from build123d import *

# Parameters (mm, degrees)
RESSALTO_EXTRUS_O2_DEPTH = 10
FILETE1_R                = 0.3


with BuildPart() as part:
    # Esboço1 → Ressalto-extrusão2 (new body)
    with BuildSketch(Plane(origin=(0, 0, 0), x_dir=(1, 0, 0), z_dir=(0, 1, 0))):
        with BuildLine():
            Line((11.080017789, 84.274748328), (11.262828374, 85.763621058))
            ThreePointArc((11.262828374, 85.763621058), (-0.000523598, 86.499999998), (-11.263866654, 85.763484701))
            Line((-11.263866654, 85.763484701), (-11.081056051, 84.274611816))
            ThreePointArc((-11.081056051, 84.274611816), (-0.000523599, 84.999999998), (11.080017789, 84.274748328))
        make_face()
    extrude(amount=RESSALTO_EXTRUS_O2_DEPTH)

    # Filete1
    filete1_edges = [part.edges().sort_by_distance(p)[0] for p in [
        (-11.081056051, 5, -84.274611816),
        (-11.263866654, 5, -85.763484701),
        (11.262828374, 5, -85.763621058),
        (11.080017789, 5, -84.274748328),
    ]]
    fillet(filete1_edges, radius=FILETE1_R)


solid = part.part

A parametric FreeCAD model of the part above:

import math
import FreeCAD as App
import Part
import Sketcher
from FreeCAD import Vector
Q = App.Units.Quantity


def edges_at(feature, points):
    """Names of the edges that pass closest to the given points."""
    edges = feature.Shape.Edges
    near = lambda p: min(range(len(edges)), key=lambda i: edges[i].distToShape(Part.Vertex(*p))[0])
    return sorted({f"Edge{near(p) + 1}" for p in points})

doc = App.newDocument("Part")
body = doc.addObject("PartDesign::Body", "Body")

# Sketch on XZ plane
sketch1 = body.newObject("Sketcher::SketchObject", "Sketch")
sketch1.AttachmentSupport = (doc.getObject("XZ_Plane"), [""])
sketch1.MapMode = "FlatFace"
sketch1.addGeometry([
    Part.LineSegment(Vector(11.080018, -84.274748, 0), Vector(11.262828, -85.763621, 0)),
    Part.ArcOfCircle(Part.Circle(Vector(0, 0, 0), Vector(0, 0, 1), 86.5), math.radians(-97.482196), math.radians(-82.518497)),
    Part.LineSegment(Vector(-11.263867, -85.763485, 0), Vector(-11.081056, -84.274612, 0)),
    Part.ArcOfCircle(Part.Circle(Vector(0, 0, 0), Vector(0, 0, 1), 85), math.radians(-97.490706), math.radians(-82.51)),
], False)
sketch1.addConstraint([
    Sketcher.Constraint("Coincident", 0, 2, 1, 2),
    Sketcher.Constraint("Coincident", 1, 1, 2, 1),
    Sketcher.Constraint("Coincident", 2, 2, 3, 1),
    Sketcher.Constraint("Coincident", 3, 2, 0, 1),
    Sketcher.Constraint("Coincident", 1, 3, -1, 1),
    Sketcher.Constraint("Coincident", 3, 3, -1, 1),
    Sketcher.Constraint("Radius", 3, Q("85 mm")),
    Sketcher.Constraint("Radius", 1, Q("86.5 mm")),
    Sketcher.Constraint("DistanceX", -1, 1, 0, 2, Q("11.262828 mm")),
    Sketcher.Constraint("DistanceY", 2, 2, -1, 1, Q("84.274612 mm")),
    Sketcher.Constraint("DistanceY", 3, 2, -1, 1, Q("84.274748 mm")),
    Sketcher.Constraint("DistanceX", 1, 1, 2, 2, Q("0.182811 mm")),
])
pad1 = body.newObject("PartDesign::Pad", "Pad")
pad1.Profile = sketch1
pad1.Length = 10
pad1.Reversed = True
doc.recompute()

fillet = body.newObject("PartDesign::Fillet", "Fillet")
fillet.Base = (pad1, edges_at(pad1, [
    (-11.081, 5, -84.275),
    (-11.264, 5, -85.763),
    (11.263, 5, -85.764),
    (11.08, 5, -84.275),
]))
fillet.Radius = 0.3

doc.recompute()
